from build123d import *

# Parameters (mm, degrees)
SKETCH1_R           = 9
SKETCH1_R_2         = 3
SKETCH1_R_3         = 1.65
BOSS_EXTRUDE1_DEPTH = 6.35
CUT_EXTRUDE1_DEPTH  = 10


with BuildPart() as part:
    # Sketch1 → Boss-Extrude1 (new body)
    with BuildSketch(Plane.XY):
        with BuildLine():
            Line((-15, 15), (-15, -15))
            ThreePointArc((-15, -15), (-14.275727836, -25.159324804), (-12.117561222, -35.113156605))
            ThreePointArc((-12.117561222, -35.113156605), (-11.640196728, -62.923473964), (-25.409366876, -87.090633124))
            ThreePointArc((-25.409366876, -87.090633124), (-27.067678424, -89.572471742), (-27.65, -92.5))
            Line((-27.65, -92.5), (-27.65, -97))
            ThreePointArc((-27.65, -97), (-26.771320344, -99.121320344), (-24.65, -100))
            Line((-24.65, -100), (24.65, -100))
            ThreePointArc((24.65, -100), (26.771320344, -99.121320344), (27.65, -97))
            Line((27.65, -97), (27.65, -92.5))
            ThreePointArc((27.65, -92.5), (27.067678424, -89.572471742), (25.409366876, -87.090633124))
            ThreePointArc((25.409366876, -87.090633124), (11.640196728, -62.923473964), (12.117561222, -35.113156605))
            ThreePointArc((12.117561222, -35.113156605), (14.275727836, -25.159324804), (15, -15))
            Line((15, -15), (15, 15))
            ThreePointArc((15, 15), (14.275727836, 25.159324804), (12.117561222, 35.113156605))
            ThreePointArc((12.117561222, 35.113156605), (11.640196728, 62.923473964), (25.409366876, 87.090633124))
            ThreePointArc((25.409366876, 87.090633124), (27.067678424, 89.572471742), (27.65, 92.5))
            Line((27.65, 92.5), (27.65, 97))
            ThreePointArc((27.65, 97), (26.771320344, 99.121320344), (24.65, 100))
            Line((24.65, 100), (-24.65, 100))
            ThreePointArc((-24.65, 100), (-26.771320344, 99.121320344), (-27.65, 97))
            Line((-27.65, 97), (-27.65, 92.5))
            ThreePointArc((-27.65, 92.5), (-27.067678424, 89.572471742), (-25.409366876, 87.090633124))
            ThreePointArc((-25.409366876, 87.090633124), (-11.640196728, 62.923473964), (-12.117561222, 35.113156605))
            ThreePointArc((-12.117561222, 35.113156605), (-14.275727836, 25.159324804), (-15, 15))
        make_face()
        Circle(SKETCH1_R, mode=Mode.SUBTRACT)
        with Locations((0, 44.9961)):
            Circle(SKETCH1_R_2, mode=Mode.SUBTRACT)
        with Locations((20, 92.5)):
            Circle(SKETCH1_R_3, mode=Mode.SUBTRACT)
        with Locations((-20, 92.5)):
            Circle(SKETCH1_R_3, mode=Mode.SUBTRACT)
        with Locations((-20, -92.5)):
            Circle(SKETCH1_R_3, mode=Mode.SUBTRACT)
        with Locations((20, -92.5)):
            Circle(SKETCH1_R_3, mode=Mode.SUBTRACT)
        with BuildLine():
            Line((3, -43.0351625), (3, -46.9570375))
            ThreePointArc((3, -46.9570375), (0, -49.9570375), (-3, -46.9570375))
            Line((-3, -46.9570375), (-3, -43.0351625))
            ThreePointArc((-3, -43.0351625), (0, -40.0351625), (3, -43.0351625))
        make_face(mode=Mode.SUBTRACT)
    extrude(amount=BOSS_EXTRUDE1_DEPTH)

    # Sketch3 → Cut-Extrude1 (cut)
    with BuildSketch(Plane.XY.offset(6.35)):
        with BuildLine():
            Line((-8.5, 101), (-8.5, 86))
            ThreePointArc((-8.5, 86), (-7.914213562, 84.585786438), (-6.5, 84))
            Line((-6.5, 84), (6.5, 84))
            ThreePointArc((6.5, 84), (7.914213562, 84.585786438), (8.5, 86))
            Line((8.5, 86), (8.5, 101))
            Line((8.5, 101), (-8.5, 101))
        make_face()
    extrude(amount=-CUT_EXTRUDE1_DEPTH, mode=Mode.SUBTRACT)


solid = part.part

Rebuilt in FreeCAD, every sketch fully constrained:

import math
import FreeCAD as App
import Part
import Sketcher

V = App.Vector

doc = App.newDocument("Part")
body = doc.addObject("PartDesign::Body", "Body")

# Sketch on XY plane
sketch1 = body.newObject("Sketcher::SketchObject", "Sketch")
sketch1.AttachmentSupport = (doc.getObject("XY_Plane"), [""])
sketch1.MapMode = "FlatFace"
sketch1.addGeometry(Part.LineSegment(V(-15, 15, 0), V(-15, -15, 0)), False)
sketch1.addGeometry(Part.ArcOfCircle(Part.Circle(V(56.6, -15, 0), V(0, 0, 1), 71.6), math.radians(-180), math.radians(-163.69)), False)
sketch1.addGeometry(Part.ArcOfCircle(Part.Circle(V(-62.6, -49.9, 0), V(0, 0, 1), 52.6), math.radians(-45), math.radians(16)), False)
sketch1.addGeometry(Part.ArcOfCircle(Part.Circle(V(-20, -92.5, 0), V(0, 0, 1), 7.6), math.radians(135), math.radians(180)), False)
sketch1.addGeometry(Part.LineSegment(V(-27.6, -92.5, 0), V(-27.6, -97, 0)), False)
sketch1.addGeometry(Part.ArcOfCircle(Part.Circle(V(-24.7, -97, 0), V(0, 0, 1), 3), math.radians(180), math.radians(270)), False)
sketch1.addGeometry(Part.LineSegment(V(-24.6, -100, 0), V(24.6, -100, 0)), False)
sketch1.addGeometry(Part.ArcOfCircle(Part.Circle(V(24.7, -97, 0), V(0, 0, 1), 3), math.radians(-90), math.radians(0)), False)
sketch1.addGeometry(Part.LineSegment(V(27.6, -97, 0), V(27.6, -92.5, 0)), False)
sketch1.addGeometry(Part.ArcOfCircle(Part.Circle(V(20, -92.5, 0), V(0, 0, 1), 7.6), math.radians(0), math.radians(45)), False)
sketch1.addGeometry(Part.ArcOfCircle(Part.Circle(V(62.6, -49.9, 0), V(0, 0, 1), 52.6), math.radians(164), math.radians(225)), False)
sketch1.addGeometry(Part.ArcOfCircle(Part.Circle(V(-56.6, -15, 0), V(0, 0, 1), 71.6), math.radians(-16.31), math.radians(0)), False)
sketch1.addGeometry(Part.LineSegment(V(15, -15, 0), V(15, 15, 0)), False)
sketch1.addGeometry(Part.ArcOfCircle(Part.Circle(V(-56.6, 15, 0), V(0, 0, 1), 71.6), math.radians(0), math.radians(16.31)), False)
sketch1.addGeometry(Part.ArcOfCircle(Part.Circle(V(62.6, 49.9, 0), V(0, 0, 1), 52.6), math.radians(135), math.radians(196)), False)
sketch1.addGeometry(Part.ArcOfCircle(Part.Circle(V(20, 92.5, 0), V(0, 0, 1), 7.6), math.radians(-45), math.radians(0)), False)
sketch1.addGeometry(Part.LineSegment(V(27.6, 92.5, 0), V(27.6, 97, 0)), False)
sketch1.addGeometry(Part.ArcOfCircle(Part.Circle(V(24.7, 97, 0), V(0, 0, 1), 3), math.radians(0), math.radians(90)), False)
sketch1.addGeometry(Part.LineSegment(V(24.6, 100, 0), V(-24.6, 100, 0)), False)
sketch1.addGeometry(Part.ArcOfCircle(Part.Circle(V(-24.7, 97, 0), V(0, 0, 1), 3), math.radians(90), math.radians(180)), False)
sketch1.addGeometry(Part.LineSegment(V(-27.6, 97, 0), V(-27.6, 92.5, 0)), False)
sketch1.addGeometry(Part.ArcOfCircle(Part.Circle(V(-20, 92.5, 0), V(0, 0, 1), 7.6), math.radians(180), math.radians(225)), False)
sketch1.addGeometry(Part.ArcOfCircle(Part.Circle(V(-62.6, 49.9, 0), V(0, 0, 1), 52.6), math.radians(-16), math.radians(45)), False)
sketch1.addGeometry(Part.ArcOfCircle(Part.Circle(V(56.6, 15, 0), V(0, 0, 1), 71.6), math.radians(163.69), math.radians(180)), False)
sketch1.addGeometry(Part.Circle(V(-20, -92.5, 0), V(0, 0, 1), 1.6), False)
sketch1.addGeometry(Part.Circle(V(20, -92.5, 0), V(0, 0, 1), 1.6), False)
sketch1.addGeometry(Part.ArcOfCircle(Part.Circle(V(0, -43, 0), V(0, 0, 1), 3), math.radians(0), math.radians(180)), False)
sketch1.addGeometry(Part.LineSegment(V(3, -43, 0), V(3, -47, 0)), False)
sketch1.addGeometry(Part.ArcOfCircle(Part.Circle(V(0, -47, 0), V(0, 0, 1), 3), math.radians(180), math.radians(360)), False)
sketch1.addGeometry(Part.LineSegment(V(-3, -47, 0), V(-3, -43, 0)), False)
sketch1.addGeometry(Part.Circle(V(0, 0, 0), V(0, 0, 1), 9), False)
sketch1.addGeometry(Part.Circle(V(-20, 92.5, 0), V(0, 0, 1), 1.6), False)
sketch1.addGeometry(Part.Circle(V(0, 45, 0), V(0, 0, 1), 3), False)
sketch1.addGeometry(Part.Circle(V(20, 92.5, 0), V(0, 0, 1), 1.6), False)
sketch1.addConstraint(Sketcher.Constraint("Tangent", 0, 2, 1, 1))
sketch1.addConstraint(Sketcher.Constraint("Tangent", 1, 2, 2, 2))
sketch1.addConstraint(Sketcher.Constraint("Tangent", 2, 1, 3, 1))
sketch1.addConstraint(Sketcher.Constraint("Tangent", 3, 2, 4, 1))
sketch1.addConstraint(Sketcher.Constraint("Tangent", 4, 2, 5, 1))
sketch1.addConstraint(Sketcher.Constraint("Tangent", 5, 2, 6, 1))
sketch1.addConstraint(Sketcher.Constraint("Tangent", 6, 2, 7, 1))
sketch1.addConstraint(Sketcher.Constraint("Tangent", 7, 2, 8, 1))
sketch1.addConstraint(Sketcher.Constraint("Tangent", 8, 2, 9, 1))
sketch1.addConstraint(Sketcher.Constraint("Tangent", 9, 2, 10, 2))
sketch1.addConstraint(Sketcher.Constraint("Tangent", 10, 1, 11, 1))
sketch1.addConstraint(Sketcher.Constraint("Tangent", 11, 2, 12, 1))
sketch1.addConstraint(Sketcher.Constraint("Tangent", 12, 2, 13, 1))
sketch1.addConstraint(Sketcher.Constraint("Tangent", 13, 2, 14, 2))
sketch1.addConstraint(Sketcher.Constraint("Tangent", 14, 1, 15, 1))
sketch1.addConstraint(Sketcher.Constraint("Tangent", 15, 2, 16, 1))
sketch1.addConstraint(Sketcher.Constraint("Tangent", 16, 2, 17, 1))
sketch1.addConstraint(Sketcher.Constraint("Tangent", 17, 2, 18, 1))
sketch1.addConstraint(Sketcher.Constraint("Tangent", 18, 2, 19, 1))
sketch1.addConstraint(Sketcher.Constraint("Tangent", 19, 2, 20, 1))
sketch1.addConstraint(Sketcher.Constraint("Tangent", 20, 2, 21, 1))
sketch1.addConstraint(Sketcher.Constraint("Tangent", 21, 2, 22, 2))
sketch1.addConstraint(Sketcher.Constraint("Tangent", 22, 1, 23, 1))
sketch1.addConstraint(Sketcher.Constraint("Tangent", 23, 2, 0, 1))
sketch1.addConstraint(Sketcher.Constraint("Tangent", 26, 1, 27, 1))
sketch1.addConstraint(Sketcher.Constraint("Tangent", 27, 2, 28, 2))
sketch1.addConstraint(Sketcher.Constraint("Tangent", 28, 1, 29, 1))
sketch1.addConstraint(Sketcher.Constraint("Tangent", 29, 2, 26, 2))
sketch1.addConstraint(Sketcher.Constraint("Vertical", 0))
sketch1.addConstraint(Sketcher.Constraint("Vertical", 4))
sketch1.addConstraint(Sketcher.Constraint("Horizontal", 6))
sketch1.addConstraint(Sketcher.Constraint("Vertical", 8))
sketch1.addConstraint(Sketcher.Constraint("Vertical", 12))
sketch1.addConstraint(Sketcher.Constraint("Vertical", 16))
sketch1.addConstraint(Sketcher.Constraint("Horizontal", 18))
sketch1.addConstraint(Sketcher.Constraint("Vertical", 20))
sketch1.addConstraint(Sketcher.Constraint("Vertical", 27))
sketch1.addConstraint(Sketcher.Constraint("Vertical", 29))
sketch1.addConstraint(Sketcher.Constraint("Coincident", 30, 3, -1, 1))
sketch1.addConstraint(Sketcher.Constraint("Coincident", 24, 3, 3, 3))
sketch1.addConstraint(Sketcher.Constraint("Coincident", 25, 3, 9, 3))
sketch1.addConstraint(Sketcher.Constraint("Coincident", 31, 3, 21, 3))
sketch1.addConstraint(Sketcher.Constraint("Coincident", 33, 3, 15, 3))
sketch1.addConstraint(Sketcher.Constraint("Equal", 5, 7))
sketch1.addConstraint(Sketcher.Constraint("Equal", 3, 9))
sketch1.addConstraint(Sketcher.Constraint("Equal", 2, 10))
sketch1.addConstraint(Sketcher.Constraint("Equal", 1, 11))
sketch1.addConstraint(Sketcher.Constraint("Equal", 11, 13))
sketch1.addConstraint(Sketcher.Constraint("Equal", 10, 14))
sketch1.addConstraint(Sketcher.Constraint("Equal", 9, 15))
sketch1.addConstraint(Sketcher.Constraint("Equal", 7, 17))
sketch1.addConstraint(Sketcher.Constraint("Equal", 17, 19))
sketch1.addConstraint(Sketcher.Constraint("Equal", 15, 21))
sketch1.addConstraint(Sketcher.Constraint("Equal", 14, 22))
sketch1.addConstraint(Sketcher.Constraint("Equal", 13, 23))
sketch1.addConstraint(Sketcher.Constraint("Equal", 24, 25))
sketch1.addConstraint(Sketcher.Constraint("Equal", 19, 26))
sketch1.addConstraint(Sketcher.Constraint("Equal", 25, 31))
sketch1.addConstraint(Sketcher.Constraint("Equal", 28, 32))
sketch1.addConstraint(Sketcher.Constraint("Equal", 31, 33))
sketch1.addConstraint(Sketcher.Constraint("Symmetric", 1, 3, 13, 3, -1, 1))
sketch1.addConstraint(Sketcher.Constraint("Symmetric", 3, 3, 15, 3, -1, 1))
sketch1.addConstraint(Sketcher.Constraint("Symmetric", 7, 3, 19, 3, -1, 1))
sketch1.addConstraint(Sketcher.Constraint("Symmetric", 10, 3, 22, 3, -1, 1))
sketch1.addConstraint(Sketcher.Constraint("Symmetric", 3, 3, 9, 3, -2))
sketch1.addConstraint(Sketcher.Constraint("PointOnObject", 26, 3, -2))
sketch1.addConstraint(Sketcher.Constraint("PointOnObject", 32, 3, -2))
sketch1.addConstraint(Sketcher.Constraint("Horizontal", 2, 3, 10, 3))
sketch1.addConstraint(Sketcher.Constraint("Diameter", 30, 18.0))
sketch1.addConstraint(Sketcher.Constraint("Diameter", 32, 6.0))
sketch1.addConstraint(Sketcher.Constraint("Diameter", 24, 3.3))
sketch1.addConstraint(Sketcher.Constraint("DistanceY", 0, 2, 0, 1, 30.0))
sketch1.addConstraint(Sketcher.Constraint("Radius", 3, 7.65))
sketch1.addConstraint(Sketcher.Constraint("DistanceX", 6, 1, 6, 2, 49.3))
sketch1.addConstraint(Sketcher.Constraint("DistanceY", 4, 2, 4, 1, 4.5))
sketch1.addConstraint(Sketcher.Constraint("DistanceY", 5, 3, -1, 1, 97.0))
sketch1.addConstraint(Sketcher.Constraint("DistanceX", 0, 2, -1, 1, 15.0))
sketch1.addConstraint(Sketcher.Constraint("Radius", 2, 52.610869))
sketch1.addConstraint(Sketcher.Constraint("Radius", 1, 71.614274))
sketch1.addConstraint(Sketcher.Constraint("DistanceY", -1, 1, 32, 3, 44.9961))
sketch1.addConstraint(Sketcher.Constraint("DistanceY", 27, 2, 27, 1, 3.921875))
sketch1.addConstraint(Sketcher.Constraint("DistanceY", 28, 3, 1, 2, 11.843881))
pad1 = body.newObject("PartDesign::Pad", "Pad")
pad1.Profile = sketch1
pad1.Length = 6.35

# Sketch on XY plane
sketch2 = body.newObject("Sketcher::SketchObject", "Sketch001")
sketch2.AttachmentSupport = (doc.getObject("XY_Plane"), [""])
sketch2.MapMode = "FlatFace"
sketch2.AttachmentOffset = App.Placement(V(0, 0, 6.35), App.Rotation())
sketch2.addGeometry(Part.LineSegment(V(-8.5, 101, 0), V(-8.5, 86, 0)), False)
sketch2.addGeometry(Part.ArcOfCircle(Part.Circle(V(-6.5, 86, 0), V(0, 0, 1), 2), math.radians(-180), math.radians(-90)), False)
sketch2.addGeometry(Part.LineSegment(V(-6.5, 84, 0), V(6.5, 84, 0)), False)
sketch2.addGeometry(Part.ArcOfCircle(Part.Circle(V(6.5, 86, 0), V(0, 0, 1), 2), math.radians(-90), math.radians(0)), False)
sketch2.addGeometry(Part.LineSegment(V(8.5, 86, 0), V(8.5, 101, 0)), False)
sketch2.addGeometry(Part.LineSegment(V(8.5, 101, 0), V(-8.5, 101, 0)), False)
sketch2.addConstraint(Sketcher.Constraint("Tangent", 0, 2, 1, 1))
sketch2.addConstraint(Sketcher.Constraint("Tangent", 1, 2, 2, 1))
sketch2.addConstraint(Sketcher.Constraint("Tangent", 2, 2, 3, 1))
sketch2.addConstraint(Sketcher.Constraint("Tangent", 3, 2, 4, 1))
sketch2.addConstraint(Sketcher.Constraint("Coincident", 4, 2, 5, 1))
sketch2.addConstraint(Sketcher.Constraint("Coincident", 5, 2, 0, 1))
sketch2.addConstraint(Sketcher.Constraint("Vertical", 0))
sketch2.addConstraint(Sketcher.Constraint("Horizontal", 2))
sketch2.addConstraint(Sketcher.Constraint("Vertical", 4))
sketch2.addConstraint(Sketcher.Constraint("Horizontal", 5))
sketch2.addConstraint(Sketcher.Constraint("Equal", 1, 3))
sketch2.addConstraint(Sketcher.Constraint("Radius", 1, 2.0))
sketch2.addConstraint(Sketcher.Constraint("DistanceX", 2, 1, 2, 2, 13.0))
sketch2.addConstraint(Sketcher.Constraint("DistanceY", 0, 2, 0, 1, 15.0))
sketch2.addConstraint(Sketcher.Constraint("DistanceY", -1, 1, 1, 3, 86.0))
sketch2.addConstraint(Sketcher.Constraint("DistanceX", 1, 3, -1, 1, 6.5))
pocket1 = body.newObject("PartDesign::Pocket", "Pocket")
pocket1.Profile = sketch2
pocket1.Length = 10

doc.recompute()
